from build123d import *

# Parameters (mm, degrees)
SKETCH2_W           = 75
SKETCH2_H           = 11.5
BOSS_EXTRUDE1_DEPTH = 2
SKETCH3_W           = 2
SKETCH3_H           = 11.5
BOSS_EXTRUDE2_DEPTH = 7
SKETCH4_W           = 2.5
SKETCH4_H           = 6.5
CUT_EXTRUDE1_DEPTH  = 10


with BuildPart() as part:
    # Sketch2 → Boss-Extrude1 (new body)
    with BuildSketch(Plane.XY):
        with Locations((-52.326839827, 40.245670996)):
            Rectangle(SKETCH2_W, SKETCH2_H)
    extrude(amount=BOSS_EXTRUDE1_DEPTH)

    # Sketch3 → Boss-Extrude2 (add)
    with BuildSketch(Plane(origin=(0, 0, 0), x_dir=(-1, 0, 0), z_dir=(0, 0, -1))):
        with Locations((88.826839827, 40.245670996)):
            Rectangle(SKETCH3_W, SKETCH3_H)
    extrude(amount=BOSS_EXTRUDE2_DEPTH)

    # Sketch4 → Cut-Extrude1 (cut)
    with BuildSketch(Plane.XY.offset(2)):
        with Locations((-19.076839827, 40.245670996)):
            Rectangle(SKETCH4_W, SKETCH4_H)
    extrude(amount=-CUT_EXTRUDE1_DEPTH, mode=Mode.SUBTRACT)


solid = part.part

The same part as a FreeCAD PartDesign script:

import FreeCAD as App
import Part
import Sketcher

doc = App.newDocument("Part")
body = doc.addObject("PartDesign::Body", "Body")

sketch1 = body.newObject("Sketcher::SketchObject", "Sketch")
sketch1.AttachmentSupport = (doc.getObject("XY_Plane"), [""])
sketch1.MapMode = "FlatFace"
sketch1.addGeometry(Part.LineSegment(App.Vector(-90, 46, 0), App.Vector(-90, 34, 0)), False)
sketch1.addGeometry(Part.LineSegment(App.Vector(-90, 34, 0), App.Vector(-15, 34, 0)), False)
sketch1.addGeometry(Part.LineSegment(App.Vector(-15, 34, 0), App.Vector(-15, 46, 0)), False)
sketch1.addGeometry(Part.LineSegment(App.Vector(-15, 46, 0), App.Vector(-90, 46, 0)), False)
sketch1.addConstraint(Sketcher.Constraint("Coincident", 0, 2, 1, 1))
sketch1.addConstraint(Sketcher.Constraint("Coincident", 1, 2, 2, 1))
sketch1.addConstraint(Sketcher.Constraint("Coincident", 2, 2, 3, 1))
sketch1.addConstraint(Sketcher.Constraint("Coincident", 3, 2, 0, 1))
sketch1.addConstraint(Sketcher.Constraint("Vertical", 0))
sketch1.addConstraint(Sketcher.Constraint("Horizontal", 1))
sketch1.addConstraint(Sketcher.Constraint("Vertical", 2))
sketch1.addConstraint(Sketcher.Constraint("Horizontal", 3))
sketch1.addConstraint(Sketcher.Constraint("DistanceX", 1, 1, 1, 2, 75.0))
sketch1.addConstraint(Sketcher.Constraint("DistanceY", 0, 2, 0, 1, 11.5))
sketch1.addConstraint(Sketcher.Constraint("DistanceX", 0, 2, -1, 1, 89.82684))
sketch1.addConstraint(Sketcher.Constraint("DistanceY", -1, 1, 0, 2, 34.495671))
pad1 = body.newObject("PartDesign::Pad", "Pad")
pad1.Profile = sketch1
pad1.Length = 2

sketch2 = body.newObject("Sketcher::SketchObject", "Sketch001")
sketch2.AttachmentSupport = (doc.getObject("XY_Plane"), [""])
sketch2.MapMode = "FlatFace"
sketch2.addGeometry(Part.LineSegment(App.Vector(-87.8, 46, 0), App.Vector(-87.8, 34.5, 0)), False)
sketch2.addGeometry(Part.LineSegment(App.Vector(-87.8, 34.5, 0), App.Vector(-89.8, 34.5, 0)), False)
sketch2.addGeometry(Part.LineSegment(App.Vector(-89.8, 34.5, 0), App.Vector(-89.8, 46, 0)), False)
sketch2.addGeometry(Part.LineSegment(App.Vector(-89.8, 46, 0), App.Vector(-87.8, 46, 0)), False)
sketch2.addConstraint(Sketcher.Constraint("Coincident", 0, 2, 1, 1))
sketch2.addConstraint(Sketcher.Constraint("Coincident", 1, 2, 2, 1))
sketch2.addConstraint(Sketcher.Constraint("Coincident", 2, 2, 3, 1))
sketch2.addConstraint(Sketcher.Constraint("Coincident", 3, 2, 0, 1))
sketch2.addConstraint(Sketcher.Constraint("Vertical", 0))
sketch2.addConstraint(Sketcher.Constraint("Horizontal", 1))
sketch2.addConstraint(Sketcher.Constraint("Vertical", 2))
sketch2.addConstraint(Sketcher.Constraint("Horizontal", 3))
sketch2.addConstraint(Sketcher.Constraint("DistanceX", 1, 2, 1, 1, 2.0))
sketch2.addConstraint(Sketcher.Constraint("DistanceY", 0, 2, 0, 1, 11.5))
sketch2.addConstraint(Sketcher.Constraint("DistanceX", 0, 2, -1, 1, 87.82684))
sketch2.addConstraint(Sketcher.Constraint("DistanceY", -1, 1, 0, 2, 34.495671))
pad2 = body.newObject("PartDesign::Pad", "Pad001")
pad2.Profile = sketch2
pad2.Length = 7
pad2.Reversed = True

sketch3 = body.newObject("Sketcher::SketchObject", "Sketch002")
sketch3.AttachmentSupport = (doc.getObject("XY_Plane"), [""])
sketch3.MapMode = "FlatFace"
sketch3.AttachmentOffset = App.Placement(App.Vector(0, 0, 2), App.Rotation())
sketch3.addGeometry(Part.LineSegment(App.Vector(-20.3, 43.5, 0), App.Vector(-20.3, 37, 0)), False)
sketch3.addGeometry(Part.LineSegment(App.Vector(-20.3, 37, 0), App.Vector(-17.8, 37, 0)), False)
sketch3.addGeometry(Part.LineSegment(App.Vector(-17.8, 37, 0), App.Vector(-17.8, 43.5, 0)), False)
sketch3.addGeometry(Part.LineSegment(App.Vector(-17.8, 43.5, 0), App.Vector(-20.3, 43.5, 0)), False)
sketch3.addConstraint(Sketcher.Constraint("Coincident", 0, 2, 1, 1))
sketch3.addConstraint(Sketcher.Constraint("Coincident", 1, 2, 2, 1))
sketch3.addConstraint(Sketcher.Constraint("Coincident", 2, 2, 3, 1))
sketch3.addConstraint(Sketcher.Constraint("Coincident", 3, 2, 0, 1))
sketch3.addConstraint(Sketcher.Constraint("Vertical", 0))
sketch3.addConstraint(Sketcher.Constraint("Horizontal", 1))
sketch3.addConstraint(Sketcher.Constraint("Vertical", 2))
sketch3.addConstraint(Sketcher.Constraint("Horizontal", 3))
sketch3.addConstraint(Sketcher.Constraint("DistanceX", 1, 1, 1, 2, 2.5))
sketch3.addConstraint(Sketcher.Constraint("DistanceY", 0, 2, 0, 1, 6.5))
sketch3.addConstraint(Sketcher.Constraint("DistanceX", 0, 2, -1, 1, 20.32684))
sketch3.addConstraint(Sketcher.Constraint("DistanceY", -1, 1, 0, 2, 36.995671))
pocket1 = body.newObject("PartDesign::Pocket", "Pocket")
pocket1.Profile = sketch3
pocket1.Length = 10

doc.recompute()
